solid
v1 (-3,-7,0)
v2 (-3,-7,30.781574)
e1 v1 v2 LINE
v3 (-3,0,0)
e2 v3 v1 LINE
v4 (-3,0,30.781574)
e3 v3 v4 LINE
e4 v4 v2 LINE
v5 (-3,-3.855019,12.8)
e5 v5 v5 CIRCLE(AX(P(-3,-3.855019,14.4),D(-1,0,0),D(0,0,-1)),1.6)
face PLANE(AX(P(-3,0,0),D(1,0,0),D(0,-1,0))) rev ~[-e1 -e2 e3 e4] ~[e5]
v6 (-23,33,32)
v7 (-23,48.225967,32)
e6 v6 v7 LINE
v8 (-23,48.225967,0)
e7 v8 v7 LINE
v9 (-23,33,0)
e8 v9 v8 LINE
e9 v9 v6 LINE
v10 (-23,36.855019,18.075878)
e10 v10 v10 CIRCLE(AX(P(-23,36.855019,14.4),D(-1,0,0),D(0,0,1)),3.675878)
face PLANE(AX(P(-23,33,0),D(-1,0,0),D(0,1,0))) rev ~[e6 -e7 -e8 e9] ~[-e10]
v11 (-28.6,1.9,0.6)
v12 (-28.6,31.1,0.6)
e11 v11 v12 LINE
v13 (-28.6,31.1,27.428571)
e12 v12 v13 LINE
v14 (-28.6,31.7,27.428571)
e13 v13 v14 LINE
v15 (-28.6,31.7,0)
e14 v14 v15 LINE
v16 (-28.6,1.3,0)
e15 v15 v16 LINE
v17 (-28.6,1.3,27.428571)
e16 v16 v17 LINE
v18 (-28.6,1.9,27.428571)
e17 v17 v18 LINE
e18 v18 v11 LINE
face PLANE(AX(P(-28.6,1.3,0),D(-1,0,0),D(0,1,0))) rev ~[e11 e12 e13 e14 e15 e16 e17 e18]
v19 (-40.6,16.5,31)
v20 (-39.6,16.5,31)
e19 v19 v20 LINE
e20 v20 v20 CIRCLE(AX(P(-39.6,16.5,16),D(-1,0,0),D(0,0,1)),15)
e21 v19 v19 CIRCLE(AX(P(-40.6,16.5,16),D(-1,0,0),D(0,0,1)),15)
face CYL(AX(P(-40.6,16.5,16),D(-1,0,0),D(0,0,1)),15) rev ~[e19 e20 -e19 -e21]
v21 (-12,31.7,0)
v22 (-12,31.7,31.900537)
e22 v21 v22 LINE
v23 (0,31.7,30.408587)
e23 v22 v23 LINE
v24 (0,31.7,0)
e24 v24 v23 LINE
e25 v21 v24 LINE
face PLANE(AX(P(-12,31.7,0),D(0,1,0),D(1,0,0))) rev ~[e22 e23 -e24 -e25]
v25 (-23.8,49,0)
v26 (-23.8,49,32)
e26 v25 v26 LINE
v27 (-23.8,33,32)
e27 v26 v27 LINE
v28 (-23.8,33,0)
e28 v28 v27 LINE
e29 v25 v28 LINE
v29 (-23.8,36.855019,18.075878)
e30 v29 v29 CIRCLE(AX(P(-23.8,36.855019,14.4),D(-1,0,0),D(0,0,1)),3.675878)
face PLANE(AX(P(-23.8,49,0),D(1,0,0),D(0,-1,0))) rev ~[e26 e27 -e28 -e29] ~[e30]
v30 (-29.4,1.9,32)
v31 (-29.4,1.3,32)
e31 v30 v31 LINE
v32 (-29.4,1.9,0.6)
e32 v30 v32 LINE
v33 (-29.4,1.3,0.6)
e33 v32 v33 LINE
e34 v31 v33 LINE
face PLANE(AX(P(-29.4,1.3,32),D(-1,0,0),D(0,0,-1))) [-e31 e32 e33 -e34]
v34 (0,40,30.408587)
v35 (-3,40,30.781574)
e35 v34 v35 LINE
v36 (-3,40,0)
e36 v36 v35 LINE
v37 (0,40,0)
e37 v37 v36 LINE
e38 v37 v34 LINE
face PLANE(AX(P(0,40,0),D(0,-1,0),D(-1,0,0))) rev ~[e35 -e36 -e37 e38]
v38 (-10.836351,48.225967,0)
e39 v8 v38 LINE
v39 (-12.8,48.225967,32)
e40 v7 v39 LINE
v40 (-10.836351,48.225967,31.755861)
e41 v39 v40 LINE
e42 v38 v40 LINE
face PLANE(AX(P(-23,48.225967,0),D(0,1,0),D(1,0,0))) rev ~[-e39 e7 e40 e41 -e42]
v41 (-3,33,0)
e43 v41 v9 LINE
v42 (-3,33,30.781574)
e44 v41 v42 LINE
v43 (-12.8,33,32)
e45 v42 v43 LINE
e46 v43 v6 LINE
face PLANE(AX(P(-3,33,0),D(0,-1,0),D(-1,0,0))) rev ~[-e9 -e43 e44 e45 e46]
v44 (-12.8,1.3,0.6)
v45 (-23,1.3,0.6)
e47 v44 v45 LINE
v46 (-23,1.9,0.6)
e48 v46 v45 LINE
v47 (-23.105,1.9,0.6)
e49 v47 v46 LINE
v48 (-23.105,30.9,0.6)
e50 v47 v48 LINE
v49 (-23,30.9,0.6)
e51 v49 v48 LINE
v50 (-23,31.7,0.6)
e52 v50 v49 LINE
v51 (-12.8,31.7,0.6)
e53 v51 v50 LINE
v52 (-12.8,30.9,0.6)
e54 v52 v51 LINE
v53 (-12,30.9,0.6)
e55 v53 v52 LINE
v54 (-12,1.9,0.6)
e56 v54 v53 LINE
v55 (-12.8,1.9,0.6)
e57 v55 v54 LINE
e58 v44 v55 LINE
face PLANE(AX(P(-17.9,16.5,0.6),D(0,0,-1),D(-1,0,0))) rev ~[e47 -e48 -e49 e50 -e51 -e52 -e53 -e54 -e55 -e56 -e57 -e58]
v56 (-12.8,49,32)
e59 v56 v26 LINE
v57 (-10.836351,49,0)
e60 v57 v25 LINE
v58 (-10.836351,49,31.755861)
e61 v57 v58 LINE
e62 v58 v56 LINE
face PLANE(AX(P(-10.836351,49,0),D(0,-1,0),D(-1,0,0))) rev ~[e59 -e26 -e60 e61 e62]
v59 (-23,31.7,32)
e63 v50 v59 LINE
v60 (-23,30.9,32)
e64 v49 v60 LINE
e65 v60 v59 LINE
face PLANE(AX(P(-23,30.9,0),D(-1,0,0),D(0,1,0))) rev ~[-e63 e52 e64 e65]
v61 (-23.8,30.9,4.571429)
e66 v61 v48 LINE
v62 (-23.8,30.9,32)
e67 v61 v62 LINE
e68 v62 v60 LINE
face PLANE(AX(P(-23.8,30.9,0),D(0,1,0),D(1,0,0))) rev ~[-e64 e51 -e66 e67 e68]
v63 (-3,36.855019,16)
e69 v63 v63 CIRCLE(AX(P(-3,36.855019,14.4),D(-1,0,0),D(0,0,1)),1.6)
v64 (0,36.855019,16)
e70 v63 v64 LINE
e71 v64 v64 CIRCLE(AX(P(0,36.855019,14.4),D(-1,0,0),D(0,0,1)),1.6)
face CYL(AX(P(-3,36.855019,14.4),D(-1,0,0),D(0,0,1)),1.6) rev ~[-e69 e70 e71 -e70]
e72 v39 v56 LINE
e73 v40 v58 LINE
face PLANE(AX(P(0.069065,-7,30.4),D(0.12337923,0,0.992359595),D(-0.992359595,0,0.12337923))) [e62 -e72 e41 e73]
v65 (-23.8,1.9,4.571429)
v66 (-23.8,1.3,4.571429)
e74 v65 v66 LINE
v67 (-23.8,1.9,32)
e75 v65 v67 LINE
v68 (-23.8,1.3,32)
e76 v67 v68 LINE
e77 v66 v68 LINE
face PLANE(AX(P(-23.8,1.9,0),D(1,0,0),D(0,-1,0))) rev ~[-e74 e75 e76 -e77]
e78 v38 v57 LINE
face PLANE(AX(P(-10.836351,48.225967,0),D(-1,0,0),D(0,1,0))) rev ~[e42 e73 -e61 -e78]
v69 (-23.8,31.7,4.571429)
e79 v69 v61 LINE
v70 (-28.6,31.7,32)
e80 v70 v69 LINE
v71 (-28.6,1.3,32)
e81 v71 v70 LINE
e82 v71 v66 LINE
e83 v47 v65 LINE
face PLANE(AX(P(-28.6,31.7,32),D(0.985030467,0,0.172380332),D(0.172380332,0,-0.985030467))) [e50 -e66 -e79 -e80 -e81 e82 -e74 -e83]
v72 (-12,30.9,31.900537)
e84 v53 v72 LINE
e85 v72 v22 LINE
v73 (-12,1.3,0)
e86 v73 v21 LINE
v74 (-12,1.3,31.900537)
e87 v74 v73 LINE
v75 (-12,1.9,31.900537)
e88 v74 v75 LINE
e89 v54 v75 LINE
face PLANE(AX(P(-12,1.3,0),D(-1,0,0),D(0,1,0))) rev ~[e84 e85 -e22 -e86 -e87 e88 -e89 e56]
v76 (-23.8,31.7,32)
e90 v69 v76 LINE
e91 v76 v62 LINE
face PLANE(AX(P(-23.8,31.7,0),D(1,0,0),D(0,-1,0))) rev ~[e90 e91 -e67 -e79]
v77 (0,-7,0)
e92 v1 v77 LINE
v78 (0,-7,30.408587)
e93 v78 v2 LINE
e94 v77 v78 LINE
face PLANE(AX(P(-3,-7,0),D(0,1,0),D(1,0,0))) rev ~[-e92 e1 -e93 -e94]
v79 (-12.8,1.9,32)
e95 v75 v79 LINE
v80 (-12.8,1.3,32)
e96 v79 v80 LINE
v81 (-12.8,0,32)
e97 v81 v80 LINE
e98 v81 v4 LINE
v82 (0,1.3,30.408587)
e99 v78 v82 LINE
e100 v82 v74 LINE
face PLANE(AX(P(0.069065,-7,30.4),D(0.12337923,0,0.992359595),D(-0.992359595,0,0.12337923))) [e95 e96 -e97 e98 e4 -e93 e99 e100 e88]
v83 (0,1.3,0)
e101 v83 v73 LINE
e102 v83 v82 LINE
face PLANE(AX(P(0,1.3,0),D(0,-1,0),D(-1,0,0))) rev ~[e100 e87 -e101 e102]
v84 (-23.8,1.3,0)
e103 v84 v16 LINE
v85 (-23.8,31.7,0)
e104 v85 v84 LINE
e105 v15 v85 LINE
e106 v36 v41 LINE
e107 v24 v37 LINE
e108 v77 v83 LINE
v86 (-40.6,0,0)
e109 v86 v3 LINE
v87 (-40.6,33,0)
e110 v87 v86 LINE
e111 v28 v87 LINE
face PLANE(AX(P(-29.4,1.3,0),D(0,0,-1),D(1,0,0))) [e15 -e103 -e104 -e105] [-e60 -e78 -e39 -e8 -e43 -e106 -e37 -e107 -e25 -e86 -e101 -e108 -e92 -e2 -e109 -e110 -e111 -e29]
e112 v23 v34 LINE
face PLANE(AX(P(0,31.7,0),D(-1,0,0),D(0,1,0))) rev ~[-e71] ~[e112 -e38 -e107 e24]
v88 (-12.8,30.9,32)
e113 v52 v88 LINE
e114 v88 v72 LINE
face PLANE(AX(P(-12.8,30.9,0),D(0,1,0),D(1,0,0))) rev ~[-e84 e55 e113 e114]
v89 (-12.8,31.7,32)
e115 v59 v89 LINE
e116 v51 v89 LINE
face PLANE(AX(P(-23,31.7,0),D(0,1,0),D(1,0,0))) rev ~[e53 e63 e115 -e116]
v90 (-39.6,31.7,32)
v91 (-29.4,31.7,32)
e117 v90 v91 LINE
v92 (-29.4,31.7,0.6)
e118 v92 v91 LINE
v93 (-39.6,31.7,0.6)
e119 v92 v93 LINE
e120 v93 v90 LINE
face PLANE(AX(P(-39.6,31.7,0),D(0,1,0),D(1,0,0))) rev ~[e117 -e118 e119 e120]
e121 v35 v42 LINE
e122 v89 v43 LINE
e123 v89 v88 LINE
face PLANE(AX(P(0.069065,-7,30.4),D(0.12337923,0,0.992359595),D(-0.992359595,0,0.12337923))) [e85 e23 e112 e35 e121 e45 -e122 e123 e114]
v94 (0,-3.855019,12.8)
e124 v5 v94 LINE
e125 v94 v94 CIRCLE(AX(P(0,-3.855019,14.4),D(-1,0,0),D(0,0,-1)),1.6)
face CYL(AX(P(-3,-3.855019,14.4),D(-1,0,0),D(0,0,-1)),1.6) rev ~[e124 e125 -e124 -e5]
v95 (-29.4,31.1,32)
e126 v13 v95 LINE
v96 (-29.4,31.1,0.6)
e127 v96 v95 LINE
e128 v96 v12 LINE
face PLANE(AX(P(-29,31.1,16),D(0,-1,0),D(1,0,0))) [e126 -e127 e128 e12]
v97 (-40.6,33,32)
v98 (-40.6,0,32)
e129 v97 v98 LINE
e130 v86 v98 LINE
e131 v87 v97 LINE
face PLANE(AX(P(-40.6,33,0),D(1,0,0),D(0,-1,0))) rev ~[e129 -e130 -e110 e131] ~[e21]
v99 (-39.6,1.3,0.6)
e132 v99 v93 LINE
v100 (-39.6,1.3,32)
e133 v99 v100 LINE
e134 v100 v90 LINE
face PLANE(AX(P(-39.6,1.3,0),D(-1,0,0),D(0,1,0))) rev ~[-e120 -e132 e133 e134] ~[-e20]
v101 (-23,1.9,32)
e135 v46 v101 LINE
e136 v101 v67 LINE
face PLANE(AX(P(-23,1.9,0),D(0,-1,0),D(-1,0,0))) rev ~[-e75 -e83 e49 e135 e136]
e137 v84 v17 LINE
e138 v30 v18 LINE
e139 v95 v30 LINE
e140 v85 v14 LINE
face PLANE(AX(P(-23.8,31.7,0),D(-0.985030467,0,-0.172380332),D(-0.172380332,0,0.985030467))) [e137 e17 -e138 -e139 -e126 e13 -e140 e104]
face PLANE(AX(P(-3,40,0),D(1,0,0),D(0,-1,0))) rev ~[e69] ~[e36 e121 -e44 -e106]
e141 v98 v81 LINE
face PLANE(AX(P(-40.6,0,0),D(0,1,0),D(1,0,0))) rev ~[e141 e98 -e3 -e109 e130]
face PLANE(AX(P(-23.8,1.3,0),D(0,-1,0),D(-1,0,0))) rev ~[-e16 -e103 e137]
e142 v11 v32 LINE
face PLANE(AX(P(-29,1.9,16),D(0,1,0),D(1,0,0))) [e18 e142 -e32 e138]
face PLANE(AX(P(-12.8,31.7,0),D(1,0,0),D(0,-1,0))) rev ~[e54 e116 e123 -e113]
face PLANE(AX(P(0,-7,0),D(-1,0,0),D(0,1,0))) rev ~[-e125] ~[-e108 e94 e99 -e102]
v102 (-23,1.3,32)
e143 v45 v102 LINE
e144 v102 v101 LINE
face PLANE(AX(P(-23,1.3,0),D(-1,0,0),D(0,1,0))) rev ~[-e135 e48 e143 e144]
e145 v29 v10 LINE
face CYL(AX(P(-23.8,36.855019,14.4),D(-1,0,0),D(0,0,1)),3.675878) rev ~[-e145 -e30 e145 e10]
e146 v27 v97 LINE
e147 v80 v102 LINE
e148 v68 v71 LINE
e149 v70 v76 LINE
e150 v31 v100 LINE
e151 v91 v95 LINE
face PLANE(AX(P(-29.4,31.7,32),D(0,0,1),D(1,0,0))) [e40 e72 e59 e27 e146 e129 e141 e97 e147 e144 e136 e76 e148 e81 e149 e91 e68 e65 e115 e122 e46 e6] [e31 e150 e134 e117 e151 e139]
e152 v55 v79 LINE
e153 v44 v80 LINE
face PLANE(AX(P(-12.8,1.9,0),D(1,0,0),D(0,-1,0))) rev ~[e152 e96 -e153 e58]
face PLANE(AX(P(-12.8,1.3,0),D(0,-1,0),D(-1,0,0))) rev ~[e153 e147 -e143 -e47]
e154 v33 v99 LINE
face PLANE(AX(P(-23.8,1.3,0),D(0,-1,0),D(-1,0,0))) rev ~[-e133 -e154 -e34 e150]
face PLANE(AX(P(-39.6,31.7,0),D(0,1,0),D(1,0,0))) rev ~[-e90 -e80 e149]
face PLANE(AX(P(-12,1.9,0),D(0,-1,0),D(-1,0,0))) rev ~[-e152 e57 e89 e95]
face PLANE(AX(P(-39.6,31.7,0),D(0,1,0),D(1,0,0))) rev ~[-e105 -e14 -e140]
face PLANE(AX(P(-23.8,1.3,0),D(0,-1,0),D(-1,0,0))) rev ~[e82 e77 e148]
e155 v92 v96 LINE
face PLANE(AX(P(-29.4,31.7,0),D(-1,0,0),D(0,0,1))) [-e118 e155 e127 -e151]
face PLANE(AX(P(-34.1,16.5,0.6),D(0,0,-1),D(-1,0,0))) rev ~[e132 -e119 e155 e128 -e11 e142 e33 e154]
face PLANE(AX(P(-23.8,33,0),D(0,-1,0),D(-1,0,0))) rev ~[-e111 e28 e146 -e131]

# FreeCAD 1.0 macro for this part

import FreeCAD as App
import Part
import Sketcher


def add_polygon(sketch, points):
    """Adds a closed chain of lines whose ends are joined by coincident constraints."""
    first, n = sketch.GeometryCount, len(points)
    for a, b in zip(points, points[1:] + points[:1]):
        sketch.addGeometry(Part.LineSegment(App.Vector(*a, 0), App.Vector(*b, 0)), False)
    for i in range(n):
        sketch.addConstraint(Sketcher.Constraint("Coincident", first + i, 2, first + (i + 1) % n, 1))

doc = App.newDocument("Part")
body = doc.addObject("PartDesign::Body", "Body")

# Sketch on XY plane
sketch1 = body.newObject("Sketcher::SketchObject", "Sketch")
sketch1.AttachmentSupport = (doc.getObject("XY_Plane"), [""])
sketch1.MapMode = "FlatFace"
add_polygon(sketch1, [(-40.6, 33), (-40.6, 0), (-3, 0), (-3, -7), (0, -7), (0, 1.3), (-12, 1.3), (-12, 1.9), (-12.8, 1.9), (-12.8, 1.3), (-23, 1.3), (-23, 1.9), (-23.8, 1.9), (-23.8, 1.3), (-39.6, 1.3), (-39.6, 31.7), (-23.8, 31.7), (-23.8, 30.9), (-23, 30.9), (-23, 31.7), (-12.8, 31.7), (-12.8, 30.9), (-12, 30.9), (-12, 31.7), (0, 31.7), (0, 40), (-3, 40), (-3, 33), (-23, 33), (-23, 48.2), (-10.8, 48.2), (-10.8, 49), (-23.8, 49), (-23.8, 33)])  # lines 0-33
sketch1.addConstraint([
    Sketcher.Constraint("Vertical", 0),
    Sketcher.Constraint("Horizontal", 1),
    Sketcher.Constraint("Vertical", 2),
    Sketcher.Constraint("Horizontal", 3),
    Sketcher.Constraint("Vertical", 4),
    Sketcher.Constraint("Horizontal", 5),
    Sketcher.Constraint("Vertical", 6),
    Sketcher.Constraint("Horizontal", 7),
    Sketcher.Constraint("Vertical", 8),
    Sketcher.Constraint("Horizontal", 9),
    Sketcher.Constraint("Vertical", 10),
    Sketcher.Constraint("Horizontal", 11),
    Sketcher.Constraint("Vertical", 12),
    Sketcher.Constraint("Horizontal", 13),
    Sketcher.Constraint("Vertical", 14),
    Sketcher.Constraint("Horizontal", 15),
    Sketcher.Constraint("Vertical", 16),
    Sketcher.Constraint("Horizontal", 17),
    Sketcher.Constraint("Vertical", 18),
    Sketcher.Constraint("Horizontal", 19),
    Sketcher.Constraint("Vertical", 20),
    Sketcher.Constraint("Horizontal", 21),
    Sketcher.Constraint("Vertical", 22),
    Sketcher.Constraint("Horizontal", 23),
    Sketcher.Constraint("Vertical", 24),
    Sketcher.Constraint("Horizontal", 25),
    Sketcher.Constraint("Vertical", 26),
    Sketcher.Constraint("Horizontal", 27),
    Sketcher.Constraint("Vertical", 28),
    Sketcher.Constraint("Horizontal", 29),
    Sketcher.Constraint("Vertical", 30),
    Sketcher.Constraint("Horizontal", 31),
    Sketcher.Constraint("Vertical", 32),
    Sketcher.Constraint("Horizontal", 33),
    Sketcher.Constraint("PointOnObject", 0, 2, -1),
    Sketcher.Constraint("PointOnObject", 3, 2, -2),
    Sketcher.Constraint("PointOnObject", 23, 2, -2),
    Sketcher.Constraint("Horizontal", 5, 2, 8, 2),
    Sketcher.Constraint("Horizontal", 7, 2, 10, 2),
    Sketcher.Constraint("Horizontal", 9, 2, 12, 2),
    Sketcher.Constraint("Horizontal", 15, 2, 18, 2),
    Sketcher.Constraint("Horizontal", 17, 2, 20, 2),
    Sketcher.Constraint("Horizontal", 19, 2, 22, 2),
    Sketcher.Constraint("Horizontal", 27, 2, 32, 2),
    Sketcher.Constraint("Vertical", 12, 2, 15, 2),
    Sketcher.Constraint("Vertical", 10, 2, 17, 2),
    Sketcher.Constraint("Vertical", 8, 2, 19, 2),
    Sketcher.Constraint("Vertical", 6, 2, 21, 2),
    Sketcher.Constraint("Vertical", 2, 2, 25, 2),
    Sketcher.Constraint("Vertical", 18, 2, 27, 2),
    Sketcher.Constraint("Vertical", 16, 2, 31, 2),
    Sketcher.Constraint("Equal", 7, 11),
    Sketcher.Constraint("Equal", 21, 16),
    Sketcher.Constraint("Equal", 4, 24),
    Sketcher.Constraint("Equal", 2, 26),
    Sketcher.Constraint("DistanceX", 3, 1, 3, 2, 3.0),
    Sketcher.Constraint("DistanceX", 5, 2, 5, 1, 12.0),
    Sketcher.Constraint("DistanceX", 27, 2, 27, 1, 20.0),
    Sketcher.Constraint("DistanceY", 0, 2, 0, 1, 33.0),
    Sketcher.Constraint("DistanceY", 2, 2, 2, 1, 7.0),
    Sketcher.Constraint("DistanceY", 32, 2, 32, 1, 16.0),
    Sketcher.Constraint("DistanceX", 1, 1, 1, 2, 37.6),
    Sketcher.Constraint("DistanceX", 7, 2, 7, 1, 0.8),
    Sketcher.Constraint("DistanceX", 13, 2, 13, 1, 15.8),
    Sketcher.Constraint("DistanceY", 4, 1, 4, 2, 8.3),
    Sketcher.Constraint("DistanceY", 6, 1, 6, 2, 0.6),
    Sketcher.Constraint("DistanceX", 29, 1, 29, 2, 12.163649),
    Sketcher.Constraint("DistanceY", 28, 1, 28, 2, 15.225967),
])
pad1 = body.newObject("PartDesign::Pad", "Pad")
pad1.Profile = sketch1
pad1.Length = 32

# Sketch on XZ plane
sketch2 = body.newObject("Sketcher::SketchObject", "Sketch001")
sketch2.AttachmentSupport = (doc.getObject("XZ_Plane"), [""])
sketch2.MapMode = "FlatFace"
sketch2.AttachmentOffset = App.Placement(App.Vector(0, 0, -31.7), App.Rotation())
add_polygon(sketch2, [(-29.4, 32), (-23.8, 0), (-23, 0), (-28.6, 32)])  # lines 0-3
sketch2.addConstraint([
    Sketcher.Constraint("Horizontal", 1),
    Sketcher.Constraint("Horizontal", 3),
    Sketcher.Constraint("PointOnObject", 0, 2, -1),
    Sketcher.Constraint("Parallel", 0, 2),
    Sketcher.Constraint("DistanceX", 1, 1, 1, 2, 0.8),
    Sketcher.Constraint("DistanceX", 1, 2, -1, 1, 23.0),
    Sketcher.Constraint("DistanceY", -1, 1, 2, 2, 32.0),
    Sketcher.Constraint("DistanceX", 2, 2, -1, 1, 28.6),
])
pad2 = body.newObject("PartDesign::Pad", "Pad001")
pad2.Profile = sketch2
pad2.Length = 30.4

# Sketch on XZ plane
sketch3 = body.newObject("Sketcher::SketchObject", "Sketch002")
sketch3.AttachmentSupport = (doc.getObject("XZ_Plane"), [""])
sketch3.MapMode = "FlatFace"
sketch3.AttachmentOffset = App.Placement(App.Vector(0, 0, -31.7), App.Rotation())
add_polygon(sketch3, [(-29.4, 32), (-29.4, 0), (-28.6, 0), (-28.6, 32)])  # lines 0-3
sketch3.addConstraint([
    Sketcher.Constraint("Vertical", 0),
    Sketcher.Constraint("Horizontal", 1),
    Sketcher.Constraint("Vertical", 2),
    Sketcher.Constraint("Horizontal", 3),
    Sketcher.Constraint("PointOnObject", 0, 2, -1),
    Sketcher.Constraint("DistanceY", 0, 2, 0, 1, 32.0),
    Sketcher.Constraint("DistanceX", 1, 1, 1, 2, 0.8),
    Sketcher.Constraint("DistanceX", 0, 2, -1, 1, 29.4),
])
pad3 = body.newObject("PartDesign::Pad", "Pad002")
pad3.Profile = sketch3
pad3.Length = 0.6

# Sketch on XZ plane
sketch4 = body.newObject("Sketcher::SketchObject", "Sketch003")
sketch4.AttachmentSupport = (doc.getObject("XZ_Plane"), [""])
sketch4.MapMode = "FlatFace"
sketch4.AttachmentOffset = App.Placement(App.Vector(0, 0, -1.3), App.Rotation())
add_polygon(sketch4, [(-29.4, 0), (-29.4, 32), (-28.6, 32), (-28.6, 0)])  # lines 0-3
sketch4.addConstraint([
    Sketcher.Constraint("Vertical", 0),
    Sketcher.Constraint("Horizontal", 1),
    Sketcher.Constraint("Vertical", 2),
    Sketcher.Constraint("Horizontal", 3),
    Sketcher.Constraint("PointOnObject", 2, 2, -1),
    Sketcher.Constraint("DistanceY", 0, 1, 0, 2, 32.0),
    Sketcher.Constraint("DistanceX", 1, 1, 1, 2, 0.8),
    Sketcher.Constraint("DistanceX", 0, 2, -1, 1, 29.4),
])
pad4 = body.newObject("PartDesign::Pad", "Pad003")
pad4.Profile = sketch4
pad4.Length = 0.6
pad4.Reversed = True

# Sketch on XY plane
sketch5 = body.newObject("Sketcher::SketchObject", "Sketch004")
sketch5.AttachmentSupport = (doc.getObject("XY_Plane"), [""])
sketch5.MapMode = "FlatFace"
add_polygon(sketch5, [(-12, 32), (-12, 1), (-24, 1), (-24, 32)])  # lines 0-3
add_polygon(sketch5, [(-29, 32), (-29, 1), (-40, 1), (-40, 32)])  # lines 4-7
sketch5.addConstraint([
    Sketcher.Constraint("Vertical", 0),
    Sketcher.Constraint("Horizontal", 1),
    Sketcher.Constraint("Vertical", 2),
    Sketcher.Constraint("Horizontal", 3),
    Sketcher.Constraint("Vertical", 4),
    Sketcher.Constraint("Horizontal", 5),
    Sketcher.Constraint("Vertical", 6),
    Sketcher.Constraint("Horizontal", 7),
    Sketcher.Constraint("Horizontal", 1, 2, 4, 2),
    Sketcher.Constraint("Horizontal", 3, 2, 6, 2),
    Sketcher.Constraint("DistanceX", 5, 2, 5, 1, 11.0),
    Sketcher.Constraint("DistanceX", 1, 2, 1, 1, 11.8),
    Sketcher.Constraint("DistanceY", 0, 2, 0, 1, 30.4),
    Sketcher.Constraint("DistanceX", 0, 2, -1, 1, 12.0),
    Sketcher.Constraint("DistanceY", -1, 1, 0, 2, 1.3),
    Sketcher.Constraint("DistanceX", 4, 2, -1, 1, 28.6),
])
pad5 = body.newObject("PartDesign::Pad", "Pad004")
pad5.Profile = sketch5
pad5.Length = 0.6

# Sketch on YZ plane
sketch6 = body.newObject("Sketcher::SketchObject", "Sketch005")
sketch6.AttachmentSupport = (doc.getObject("YZ_Plane"), [""])
sketch6.MapMode = "FlatFace"
sketch6.AttachmentOffset = App.Placement(App.Vector(0, 0, -3), App.Rotation())
sketch6.addGeometry([
    Part.Circle(App.Vector(36.9, 14.4, 0), App.Vector(0, 0, 1), 1.6),
    Part.Circle(App.Vector(-3.9, 14.4, 0), App.Vector(0, 0, 1), 1.6),
], False)
sketch6.addConstraint([
    Sketcher.Constraint("Equal", 0, 1),
    Sketcher.Constraint("Horizontal", 0, 3, 1, 3),
    Sketcher.Constraint("Diameter", 0, 3.2),
    Sketcher.Constraint("DistanceY", -1, 1, 0, 3, 14.4),
    Sketcher.Constraint("DistanceX", -1, 1, 0, 3, 36.855019),
    Sketcher.Constraint("DistanceX", 1, 3, -1, 1, 3.855019),
])
pocket1 = body.newObject("PartDesign::Pocket", "Pocket")
pocket1.Profile = sketch6
pocket1.Type = "ThroughAll"
pocket1.Reversed = True

# Sketch on YZ plane
sketch7 = body.newObject("Sketcher::SketchObject", "Sketch006")
sketch7.AttachmentSupport = (doc.getObject("YZ_Plane"), [""])
sketch7.MapMode = "FlatFace"
sketch7.AttachmentOffset = App.Placement(App.Vector(0, 0, -40.6), App.Rotation())
sketch7.addGeometry(Part.Circle(App.Vector(16, 16, 0), App.Vector(0, 0, 1), 15), False)
sketch7.addConstraint([
    Sketcher.Constraint("Diameter", 0, 30.0),
    Sketcher.Constraint("DistanceY", -1, 1, 0, 3, 16.0),
    Sketcher.Constraint("DistanceX", -1, 1, 0, 3, 16.5),
])
pocket2 = body.newObject("PartDesign::Pocket", "Pocket001")
pocket2.Profile = sketch7
pocket2.Length = 3
pocket2.Reversed = True

# Sketch on YZ plane
sketch8 = body.newObject("Sketcher::SketchObject", "Sketch007")
sketch8.AttachmentSupport = (doc.getObject("YZ_Plane"), [""])
sketch8.MapMode = "FlatFace"
sketch8.AttachmentOffset = App.Placement(App.Vector(0, 0, -23.8), App.Rotation())
sketch8.addGeometry(Part.Circle(App.Vector(36.9, 14.4, 0), App.Vector(0, 0, 1), 3.7), False)
sketch8.addConstraint([
    Sketcher.Constraint("DistanceY", -1, 1, 0, 3, 14.4),
    Sketcher.Constraint("Diameter", 0, 7.351757),
    Sketcher.Constraint("DistanceX", -1, 1, 0, 3, 36.855019),
])
pocket3 = body.newObject("PartDesign::Pocket", "Pocket002")
pocket3.Profile = sketch8
pocket3.Length = 10
pocket3.Reversed = True

# Sketch on XZ plane
sketch9 = body.newObject("Sketcher::SketchObject", "Sketch008")
sketch9.AttachmentSupport = (doc.getObject("XZ_Plane"), [""])
sketch9.MapMode = "FlatFace"
sketch9.AttachmentOffset = App.Placement(App.Vector(0, 0, 7), App.Rotation())
add_polygon(sketch9, [(0.1, 32), (-12.8, 32), (0.1, 30.4)])  # lines 0-2
sketch9.addConstraint([
    Sketcher.Constraint("Horizontal", 0),
    Sketcher.Constraint("Vertical", 2),
    Sketcher.Constraint("DistanceY", 2, 1, 2, 2, 1.6),
    Sketcher.Constraint("DistanceY", -1, 1, 0, 2, 32.0),
    Sketcher.Constraint("DistanceX", 0, 2, -1, 1, 12.8),
    Sketcher.Constraint("DistanceX", 0, 2, 0, 1, 12.869065),
])
pocket4 = body.newObject("PartDesign::Pocket", "Pocket003")
pocket4.Profile = sketch9
pocket4.Type = "ThroughAll"

doc.recompute()
